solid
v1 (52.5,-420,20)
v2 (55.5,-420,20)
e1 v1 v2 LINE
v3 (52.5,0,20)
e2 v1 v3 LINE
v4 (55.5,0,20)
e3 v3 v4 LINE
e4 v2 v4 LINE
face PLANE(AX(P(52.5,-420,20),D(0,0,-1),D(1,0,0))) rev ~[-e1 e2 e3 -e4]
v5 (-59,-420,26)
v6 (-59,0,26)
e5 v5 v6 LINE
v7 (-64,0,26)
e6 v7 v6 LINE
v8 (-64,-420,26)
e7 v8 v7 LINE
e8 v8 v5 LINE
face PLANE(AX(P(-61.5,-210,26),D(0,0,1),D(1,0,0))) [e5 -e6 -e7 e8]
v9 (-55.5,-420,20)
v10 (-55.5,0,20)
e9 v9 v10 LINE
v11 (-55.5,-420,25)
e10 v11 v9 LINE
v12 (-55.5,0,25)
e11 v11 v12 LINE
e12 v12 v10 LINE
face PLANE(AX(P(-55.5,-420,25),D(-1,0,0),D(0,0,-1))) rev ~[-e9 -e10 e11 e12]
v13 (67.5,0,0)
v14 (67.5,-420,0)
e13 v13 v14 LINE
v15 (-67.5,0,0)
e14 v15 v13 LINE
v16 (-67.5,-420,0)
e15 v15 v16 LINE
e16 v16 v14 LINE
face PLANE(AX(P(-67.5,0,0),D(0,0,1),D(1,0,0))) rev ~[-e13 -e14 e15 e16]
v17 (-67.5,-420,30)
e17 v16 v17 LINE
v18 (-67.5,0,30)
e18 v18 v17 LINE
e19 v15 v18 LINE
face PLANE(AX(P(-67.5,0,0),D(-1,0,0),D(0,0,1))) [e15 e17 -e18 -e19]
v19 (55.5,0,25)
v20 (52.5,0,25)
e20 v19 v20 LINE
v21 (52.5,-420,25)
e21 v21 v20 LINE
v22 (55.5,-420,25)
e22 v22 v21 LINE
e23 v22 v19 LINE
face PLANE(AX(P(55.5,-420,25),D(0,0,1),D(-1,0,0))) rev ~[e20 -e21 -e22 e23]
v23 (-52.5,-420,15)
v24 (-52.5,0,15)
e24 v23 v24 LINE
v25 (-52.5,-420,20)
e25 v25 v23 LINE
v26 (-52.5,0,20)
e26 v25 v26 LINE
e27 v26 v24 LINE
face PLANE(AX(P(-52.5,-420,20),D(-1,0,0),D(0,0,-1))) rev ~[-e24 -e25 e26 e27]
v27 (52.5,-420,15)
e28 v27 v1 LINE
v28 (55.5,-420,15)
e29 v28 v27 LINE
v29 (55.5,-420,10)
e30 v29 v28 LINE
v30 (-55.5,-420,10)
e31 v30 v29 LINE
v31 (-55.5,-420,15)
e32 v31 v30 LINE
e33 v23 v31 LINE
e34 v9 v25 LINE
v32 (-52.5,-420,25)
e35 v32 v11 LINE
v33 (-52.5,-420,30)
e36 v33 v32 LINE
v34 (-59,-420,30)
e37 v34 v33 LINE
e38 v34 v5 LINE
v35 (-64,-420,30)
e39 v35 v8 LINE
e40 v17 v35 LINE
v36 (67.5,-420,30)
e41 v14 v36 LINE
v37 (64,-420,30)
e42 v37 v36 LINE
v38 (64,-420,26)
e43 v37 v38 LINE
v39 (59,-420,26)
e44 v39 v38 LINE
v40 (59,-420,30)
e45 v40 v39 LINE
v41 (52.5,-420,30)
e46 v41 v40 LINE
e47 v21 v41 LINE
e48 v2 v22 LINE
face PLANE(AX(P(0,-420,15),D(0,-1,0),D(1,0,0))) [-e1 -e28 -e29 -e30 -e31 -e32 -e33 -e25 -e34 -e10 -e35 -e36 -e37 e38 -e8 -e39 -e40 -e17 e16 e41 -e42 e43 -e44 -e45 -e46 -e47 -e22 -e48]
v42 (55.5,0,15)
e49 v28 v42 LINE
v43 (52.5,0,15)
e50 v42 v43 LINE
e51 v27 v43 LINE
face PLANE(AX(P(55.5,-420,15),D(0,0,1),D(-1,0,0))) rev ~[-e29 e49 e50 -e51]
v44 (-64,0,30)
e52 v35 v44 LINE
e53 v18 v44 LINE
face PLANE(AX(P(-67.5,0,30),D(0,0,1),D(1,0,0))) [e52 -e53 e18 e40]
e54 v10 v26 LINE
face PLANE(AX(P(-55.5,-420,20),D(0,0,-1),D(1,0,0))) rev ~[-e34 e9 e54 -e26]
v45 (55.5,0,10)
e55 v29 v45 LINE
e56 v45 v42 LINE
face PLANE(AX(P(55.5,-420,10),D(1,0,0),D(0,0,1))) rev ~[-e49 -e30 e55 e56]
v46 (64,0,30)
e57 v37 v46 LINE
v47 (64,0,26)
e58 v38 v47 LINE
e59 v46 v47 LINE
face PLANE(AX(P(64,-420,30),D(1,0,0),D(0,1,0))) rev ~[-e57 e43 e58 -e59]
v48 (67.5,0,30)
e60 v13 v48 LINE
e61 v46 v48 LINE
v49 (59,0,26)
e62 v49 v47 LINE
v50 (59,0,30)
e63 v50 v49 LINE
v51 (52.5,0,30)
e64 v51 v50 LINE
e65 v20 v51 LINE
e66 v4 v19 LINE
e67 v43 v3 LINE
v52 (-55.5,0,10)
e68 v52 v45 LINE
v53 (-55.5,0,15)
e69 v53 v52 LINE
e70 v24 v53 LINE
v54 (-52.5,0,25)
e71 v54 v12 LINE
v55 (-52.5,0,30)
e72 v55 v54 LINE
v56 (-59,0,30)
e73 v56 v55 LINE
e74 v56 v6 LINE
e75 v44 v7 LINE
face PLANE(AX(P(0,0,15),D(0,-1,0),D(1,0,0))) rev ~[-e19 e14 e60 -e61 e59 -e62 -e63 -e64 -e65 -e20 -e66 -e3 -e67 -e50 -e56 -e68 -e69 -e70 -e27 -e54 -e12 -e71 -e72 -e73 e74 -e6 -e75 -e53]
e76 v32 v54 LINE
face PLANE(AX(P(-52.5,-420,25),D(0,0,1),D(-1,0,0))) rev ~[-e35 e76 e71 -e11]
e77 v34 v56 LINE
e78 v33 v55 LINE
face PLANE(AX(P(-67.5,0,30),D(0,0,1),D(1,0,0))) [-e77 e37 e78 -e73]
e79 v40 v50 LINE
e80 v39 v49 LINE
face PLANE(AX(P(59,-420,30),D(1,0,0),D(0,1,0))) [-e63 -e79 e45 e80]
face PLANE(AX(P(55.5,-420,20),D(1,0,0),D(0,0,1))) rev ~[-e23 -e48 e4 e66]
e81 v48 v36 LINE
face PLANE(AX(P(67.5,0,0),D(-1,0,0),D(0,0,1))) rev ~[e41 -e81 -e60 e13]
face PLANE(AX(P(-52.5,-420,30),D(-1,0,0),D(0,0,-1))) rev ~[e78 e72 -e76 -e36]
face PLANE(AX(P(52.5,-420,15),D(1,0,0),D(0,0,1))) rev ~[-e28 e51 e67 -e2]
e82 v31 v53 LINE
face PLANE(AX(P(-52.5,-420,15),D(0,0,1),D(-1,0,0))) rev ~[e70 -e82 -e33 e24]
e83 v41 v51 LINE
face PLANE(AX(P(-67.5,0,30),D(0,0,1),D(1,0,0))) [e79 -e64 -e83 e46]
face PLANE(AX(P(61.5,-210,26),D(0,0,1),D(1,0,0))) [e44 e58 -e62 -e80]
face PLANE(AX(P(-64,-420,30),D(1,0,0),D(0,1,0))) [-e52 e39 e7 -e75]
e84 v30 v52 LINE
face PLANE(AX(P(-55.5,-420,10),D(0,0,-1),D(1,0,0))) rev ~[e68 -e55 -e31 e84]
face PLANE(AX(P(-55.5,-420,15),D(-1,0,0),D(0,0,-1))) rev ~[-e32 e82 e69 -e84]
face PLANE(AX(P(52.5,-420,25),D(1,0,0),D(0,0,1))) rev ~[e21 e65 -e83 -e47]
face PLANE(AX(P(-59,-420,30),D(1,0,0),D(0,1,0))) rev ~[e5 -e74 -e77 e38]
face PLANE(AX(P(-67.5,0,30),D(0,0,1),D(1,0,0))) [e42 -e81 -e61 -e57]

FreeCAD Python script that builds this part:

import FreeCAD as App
import Part
import Sketcher

doc = App.newDocument("Part")
body = doc.addObject("PartDesign::Body", "Body")

sketch1 = body.newObject("Sketcher::SketchObject", "Sketch")
sketch1.AttachmentSupport = (doc.getObject("XZ_Plane"), [""])
sketch1.MapMode = "FlatFace"
sketch1.addGeometry([
    Part.LineSegment(App.Vector(-68, 30, 0), App.Vector(-68, 0, 0)),
    Part.LineSegment(App.Vector(-68, 0, 0), App.Vector(68, 0, 0)),
    Part.LineSegment(App.Vector(68, 0, 0), App.Vector(68, 30, 0)),
    Part.LineSegment(App.Vector(68, 30, 0), App.Vector(-68, 30, 0)),
], False)
sketch1.addConstraint([
    Sketcher.Constraint("Coincident", 0, 2, 1, 1),
    Sketcher.Constraint("Coincident", 1, 2, 2, 1),
    Sketcher.Constraint("Coincident", 2, 2, 3, 1),
    Sketcher.Constraint("Coincident", 3, 2, 0, 1),
    Sketcher.Constraint("Vertical", 0),
    Sketcher.Constraint("Horizontal", 1),
    Sketcher.Constraint("Vertical", 2),
    Sketcher.Constraint("Horizontal", 3),
    Sketcher.Constraint("Symmetric", 0, 2, 1, 2, -1, 1),
    Sketcher.Constraint("DistanceX", 1, 1, 1, 2, 135.0),
    Sketcher.Constraint("DistanceY", 0, 2, 0, 1, 30.0),
])
pad1 = body.newObject("PartDesign::Pad", "Pad")
pad1.Profile = sketch1
pad1.Length = 420

sketch2 = body.newObject("Sketcher::SketchObject", "Sketch001")
sketch2.AttachmentSupport = (doc.getObject("XZ_Plane"), [""])
sketch2.MapMode = "FlatFace"
sketch2.AttachmentOffset = App.Placement(App.Vector(0, 0, 420), App.Rotation())
sketch2.addGeometry([
    Part.LineSegment(App.Vector(-52.5, 30, 0), App.Vector(-52.5, 25, 0)),
    Part.LineSegment(App.Vector(-52.5, 25, 0), App.Vector(-55.5, 25, 0)),
    Part.LineSegment(App.Vector(-55.5, 25, 0), App.Vector(-55.5, 20, 0)),
    Part.LineSegment(App.Vector(-55.5, 20, 0), App.Vector(-52.5, 20, 0)),
    Part.LineSegment(App.Vector(-52.5, 20, 0), App.Vector(-52.5, 15, 0)),
    Part.LineSegment(App.Vector(-52.5, 15, 0), App.Vector(-55.5, 15, 0)),
    Part.LineSegment(App.Vector(-55.5, 15, 0), App.Vector(-55.5, 10, 0)),
    Part.LineSegment(App.Vector(-55.5, 10, 0), App.Vector(55.5, 10, 0)),
    Part.LineSegment(App.Vector(55.5, 10, 0), App.Vector(55.5, 15, 0)),
    Part.LineSegment(App.Vector(55.5, 15, 0), App.Vector(52.5, 15, 0)),
    Part.LineSegment(App.Vector(52.5, 15, 0), App.Vector(52.5, 20, 0)),
    Part.LineSegment(App.Vector(52.5, 20, 0), App.Vector(55.5, 20, 0)),
    Part.LineSegment(App.Vector(55.5, 20, 0), App.Vector(55.5, 25, 0)),
    Part.LineSegment(App.Vector(55.5, 25, 0), App.Vector(52.5, 25, 0)),
    Part.LineSegment(App.Vector(52.5, 25, 0), App.Vector(52.5, 30, 0)),
    Part.LineSegment(App.Vector(52.5, 30, 0), App.Vector(-52.5, 30, 0)),
], False)
sketch2.addConstraint([
    Sketcher.Constraint("Coincident", 0, 2, 1, 1),
    Sketcher.Constraint("Coincident", 1, 2, 2, 1),
    Sketcher.Constraint("Coincident", 2, 2, 3, 1),
    Sketcher.Constraint("Coincident", 3, 2, 4, 1),
    Sketcher.Constraint("Coincident", 4, 2, 5, 1),
    Sketcher.Constraint("Coincident", 5, 2, 6, 1),
    Sketcher.Constraint("Coincident", 6, 2, 7, 1),
    Sketcher.Constraint("Coincident", 7, 2, 8, 1),
    Sketcher.Constraint("Coincident", 8, 2, 9, 1),
    Sketcher.Constraint("Coincident", 9, 2, 10, 1),
    Sketcher.Constraint("Coincident", 10, 2, 11, 1),
    Sketcher.Constraint("Coincident", 11, 2, 12, 1),
    Sketcher.Constraint("Coincident", 12, 2, 13, 1),
    Sketcher.Constraint("Coincident", 13, 2, 14, 1),
    Sketcher.Constraint("Coincident", 14, 2, 15, 1),
    Sketcher.Constraint("Coincident", 15, 2, 0, 1),
    Sketcher.Constraint("Vertical", 0),
    Sketcher.Constraint("Horizontal", 1),
    Sketcher.Constraint("Vertical", 2),
    Sketcher.Constraint("Horizontal", 3),
    Sketcher.Constraint("Vertical", 4),
    Sketcher.Constraint("Horizontal", 5),
    Sketcher.Constraint("Vertical", 6),
    Sketcher.Constraint("Horizontal", 7),
    Sketcher.Constraint("Vertical", 8),
    Sketcher.Constraint("Horizontal", 9),
    Sketcher.Constraint("Vertical", 10),
    Sketcher.Constraint("Horizontal", 11),
    Sketcher.Constraint("Vertical", 12),
    Sketcher.Constraint("Horizontal", 13),
    Sketcher.Constraint("Vertical", 14),
    Sketcher.Constraint("Horizontal", 15),
    Sketcher.Constraint("Symmetric", 5, 2, 8, 2, -2),
    Sketcher.Constraint("Symmetric", 3, 2, 10, 2, -2),
    Sketcher.Constraint("Symmetric", 1, 2, 12, 2, -2),
    Sketcher.Constraint("Vertical", 0, 2, 3, 2),
    Sketcher.Constraint("Vertical", 2, 2, 5, 2),
    Sketcher.Constraint("Vertical", 10, 2, 13, 2),
    Sketcher.Constraint("Equal", 0, 2),
    Sketcher.Constraint("Equal", 2, 4),
    Sketcher.Constraint("Equal", 4, 6),
    Sketcher.Constraint("DistanceX", 1, 2, 1, 1, 3.0),
    Sketcher.Constraint("DistanceX", 7, 1, 7, 2, 111.0),
    Sketcher.Constraint("DistanceY", 0, 2, 0, 1, 5.0),
    Sketcher.Constraint("DistanceY", -1, 1, 0, 2, 25.0),
])
pocket1 = body.newObject("PartDesign::Pocket", "Pocket")
pocket1.Profile = sketch2
pocket1.Length = 420

sketch3 = body.newObject("Sketcher::SketchObject", "Sketch002")
sketch3.AttachmentSupport = (doc.getObject("XY_Plane"), [""])
sketch3.MapMode = "FlatFace"
sketch3.AttachmentOffset = App.Placement(App.Vector(0, 0, 30), App.Rotation())
sketch3.addGeometry([
    Part.LineSegment(App.Vector(-64, 0, 0), App.Vector(-64, -420, 0)),
    Part.LineSegment(App.Vector(-64, -420, 0), App.Vector(-59, -420, 0)),
    Part.LineSegment(App.Vector(-59, -420, 0), App.Vector(-59, 0, 0)),
    Part.LineSegment(App.Vector(-59, 0, 0), App.Vector(-64, 0, 0)),
    Part.LineSegment(App.Vector(59, 0, 0), App.Vector(59, -420, 0)),
    Part.LineSegment(App.Vector(59, -420, 0), App.Vector(64, -420, 0)),
    Part.LineSegment(App.Vector(64, -420, 0), App.Vector(64, 0, 0)),
    Part.LineSegment(App.Vector(64, 0, 0), App.Vector(59, 0, 0)),
], False)
sketch3.addConstraint([
    Sketcher.Constraint("Coincident", 0, 2, 1, 1),
    Sketcher.Constraint("Coincident", 1, 2, 2, 1),
    Sketcher.Constraint("Coincident", 2, 2, 3, 1),
    Sketcher.Constraint("Coincident", 3, 2, 0, 1),
    Sketcher.Constraint("Coincident", 4, 2, 5, 1),
    Sketcher.Constraint("Coincident", 5, 2, 6, 1),
    Sketcher.Constraint("Coincident", 6, 2, 7, 1),
    Sketcher.Constraint("Coincident", 7, 2, 4, 1),
    Sketcher.Constraint("Vertical", 0),
    Sketcher.Constraint("Horizontal", 1),
    Sketcher.Constraint("Vertical", 2),
    Sketcher.Constraint("Horizontal", 3),
    Sketcher.Constraint("Vertical", 4),
    Sketcher.Constraint("Horizontal", 5),
    Sketcher.Constraint("Vertical", 6),
    Sketcher.Constraint("Horizontal", 7),
    Sketcher.Constraint("Symmetric", 3, 2, 6, 2, -1, 1),
    Sketcher.Constraint("Symmetric", 1, 2, 4, 2, -2),
    Sketcher.Constraint("PointOnObject", 2, 2, -1),
    Sketcher.Constraint("DistanceX", 1, 1, 1, 2, 5.0),
    Sketcher.Constraint("DistanceY", 0, 2, 0, 1, 420.0),
    Sketcher.Constraint("DistanceX", 0, 2, -1, 1, 64.0),
])
pocket2 = body.newObject("PartDesign::Pocket", "Pocket001")
pocket2.Profile = sketch3
pocket2.Length = 4

doc.recompute()
